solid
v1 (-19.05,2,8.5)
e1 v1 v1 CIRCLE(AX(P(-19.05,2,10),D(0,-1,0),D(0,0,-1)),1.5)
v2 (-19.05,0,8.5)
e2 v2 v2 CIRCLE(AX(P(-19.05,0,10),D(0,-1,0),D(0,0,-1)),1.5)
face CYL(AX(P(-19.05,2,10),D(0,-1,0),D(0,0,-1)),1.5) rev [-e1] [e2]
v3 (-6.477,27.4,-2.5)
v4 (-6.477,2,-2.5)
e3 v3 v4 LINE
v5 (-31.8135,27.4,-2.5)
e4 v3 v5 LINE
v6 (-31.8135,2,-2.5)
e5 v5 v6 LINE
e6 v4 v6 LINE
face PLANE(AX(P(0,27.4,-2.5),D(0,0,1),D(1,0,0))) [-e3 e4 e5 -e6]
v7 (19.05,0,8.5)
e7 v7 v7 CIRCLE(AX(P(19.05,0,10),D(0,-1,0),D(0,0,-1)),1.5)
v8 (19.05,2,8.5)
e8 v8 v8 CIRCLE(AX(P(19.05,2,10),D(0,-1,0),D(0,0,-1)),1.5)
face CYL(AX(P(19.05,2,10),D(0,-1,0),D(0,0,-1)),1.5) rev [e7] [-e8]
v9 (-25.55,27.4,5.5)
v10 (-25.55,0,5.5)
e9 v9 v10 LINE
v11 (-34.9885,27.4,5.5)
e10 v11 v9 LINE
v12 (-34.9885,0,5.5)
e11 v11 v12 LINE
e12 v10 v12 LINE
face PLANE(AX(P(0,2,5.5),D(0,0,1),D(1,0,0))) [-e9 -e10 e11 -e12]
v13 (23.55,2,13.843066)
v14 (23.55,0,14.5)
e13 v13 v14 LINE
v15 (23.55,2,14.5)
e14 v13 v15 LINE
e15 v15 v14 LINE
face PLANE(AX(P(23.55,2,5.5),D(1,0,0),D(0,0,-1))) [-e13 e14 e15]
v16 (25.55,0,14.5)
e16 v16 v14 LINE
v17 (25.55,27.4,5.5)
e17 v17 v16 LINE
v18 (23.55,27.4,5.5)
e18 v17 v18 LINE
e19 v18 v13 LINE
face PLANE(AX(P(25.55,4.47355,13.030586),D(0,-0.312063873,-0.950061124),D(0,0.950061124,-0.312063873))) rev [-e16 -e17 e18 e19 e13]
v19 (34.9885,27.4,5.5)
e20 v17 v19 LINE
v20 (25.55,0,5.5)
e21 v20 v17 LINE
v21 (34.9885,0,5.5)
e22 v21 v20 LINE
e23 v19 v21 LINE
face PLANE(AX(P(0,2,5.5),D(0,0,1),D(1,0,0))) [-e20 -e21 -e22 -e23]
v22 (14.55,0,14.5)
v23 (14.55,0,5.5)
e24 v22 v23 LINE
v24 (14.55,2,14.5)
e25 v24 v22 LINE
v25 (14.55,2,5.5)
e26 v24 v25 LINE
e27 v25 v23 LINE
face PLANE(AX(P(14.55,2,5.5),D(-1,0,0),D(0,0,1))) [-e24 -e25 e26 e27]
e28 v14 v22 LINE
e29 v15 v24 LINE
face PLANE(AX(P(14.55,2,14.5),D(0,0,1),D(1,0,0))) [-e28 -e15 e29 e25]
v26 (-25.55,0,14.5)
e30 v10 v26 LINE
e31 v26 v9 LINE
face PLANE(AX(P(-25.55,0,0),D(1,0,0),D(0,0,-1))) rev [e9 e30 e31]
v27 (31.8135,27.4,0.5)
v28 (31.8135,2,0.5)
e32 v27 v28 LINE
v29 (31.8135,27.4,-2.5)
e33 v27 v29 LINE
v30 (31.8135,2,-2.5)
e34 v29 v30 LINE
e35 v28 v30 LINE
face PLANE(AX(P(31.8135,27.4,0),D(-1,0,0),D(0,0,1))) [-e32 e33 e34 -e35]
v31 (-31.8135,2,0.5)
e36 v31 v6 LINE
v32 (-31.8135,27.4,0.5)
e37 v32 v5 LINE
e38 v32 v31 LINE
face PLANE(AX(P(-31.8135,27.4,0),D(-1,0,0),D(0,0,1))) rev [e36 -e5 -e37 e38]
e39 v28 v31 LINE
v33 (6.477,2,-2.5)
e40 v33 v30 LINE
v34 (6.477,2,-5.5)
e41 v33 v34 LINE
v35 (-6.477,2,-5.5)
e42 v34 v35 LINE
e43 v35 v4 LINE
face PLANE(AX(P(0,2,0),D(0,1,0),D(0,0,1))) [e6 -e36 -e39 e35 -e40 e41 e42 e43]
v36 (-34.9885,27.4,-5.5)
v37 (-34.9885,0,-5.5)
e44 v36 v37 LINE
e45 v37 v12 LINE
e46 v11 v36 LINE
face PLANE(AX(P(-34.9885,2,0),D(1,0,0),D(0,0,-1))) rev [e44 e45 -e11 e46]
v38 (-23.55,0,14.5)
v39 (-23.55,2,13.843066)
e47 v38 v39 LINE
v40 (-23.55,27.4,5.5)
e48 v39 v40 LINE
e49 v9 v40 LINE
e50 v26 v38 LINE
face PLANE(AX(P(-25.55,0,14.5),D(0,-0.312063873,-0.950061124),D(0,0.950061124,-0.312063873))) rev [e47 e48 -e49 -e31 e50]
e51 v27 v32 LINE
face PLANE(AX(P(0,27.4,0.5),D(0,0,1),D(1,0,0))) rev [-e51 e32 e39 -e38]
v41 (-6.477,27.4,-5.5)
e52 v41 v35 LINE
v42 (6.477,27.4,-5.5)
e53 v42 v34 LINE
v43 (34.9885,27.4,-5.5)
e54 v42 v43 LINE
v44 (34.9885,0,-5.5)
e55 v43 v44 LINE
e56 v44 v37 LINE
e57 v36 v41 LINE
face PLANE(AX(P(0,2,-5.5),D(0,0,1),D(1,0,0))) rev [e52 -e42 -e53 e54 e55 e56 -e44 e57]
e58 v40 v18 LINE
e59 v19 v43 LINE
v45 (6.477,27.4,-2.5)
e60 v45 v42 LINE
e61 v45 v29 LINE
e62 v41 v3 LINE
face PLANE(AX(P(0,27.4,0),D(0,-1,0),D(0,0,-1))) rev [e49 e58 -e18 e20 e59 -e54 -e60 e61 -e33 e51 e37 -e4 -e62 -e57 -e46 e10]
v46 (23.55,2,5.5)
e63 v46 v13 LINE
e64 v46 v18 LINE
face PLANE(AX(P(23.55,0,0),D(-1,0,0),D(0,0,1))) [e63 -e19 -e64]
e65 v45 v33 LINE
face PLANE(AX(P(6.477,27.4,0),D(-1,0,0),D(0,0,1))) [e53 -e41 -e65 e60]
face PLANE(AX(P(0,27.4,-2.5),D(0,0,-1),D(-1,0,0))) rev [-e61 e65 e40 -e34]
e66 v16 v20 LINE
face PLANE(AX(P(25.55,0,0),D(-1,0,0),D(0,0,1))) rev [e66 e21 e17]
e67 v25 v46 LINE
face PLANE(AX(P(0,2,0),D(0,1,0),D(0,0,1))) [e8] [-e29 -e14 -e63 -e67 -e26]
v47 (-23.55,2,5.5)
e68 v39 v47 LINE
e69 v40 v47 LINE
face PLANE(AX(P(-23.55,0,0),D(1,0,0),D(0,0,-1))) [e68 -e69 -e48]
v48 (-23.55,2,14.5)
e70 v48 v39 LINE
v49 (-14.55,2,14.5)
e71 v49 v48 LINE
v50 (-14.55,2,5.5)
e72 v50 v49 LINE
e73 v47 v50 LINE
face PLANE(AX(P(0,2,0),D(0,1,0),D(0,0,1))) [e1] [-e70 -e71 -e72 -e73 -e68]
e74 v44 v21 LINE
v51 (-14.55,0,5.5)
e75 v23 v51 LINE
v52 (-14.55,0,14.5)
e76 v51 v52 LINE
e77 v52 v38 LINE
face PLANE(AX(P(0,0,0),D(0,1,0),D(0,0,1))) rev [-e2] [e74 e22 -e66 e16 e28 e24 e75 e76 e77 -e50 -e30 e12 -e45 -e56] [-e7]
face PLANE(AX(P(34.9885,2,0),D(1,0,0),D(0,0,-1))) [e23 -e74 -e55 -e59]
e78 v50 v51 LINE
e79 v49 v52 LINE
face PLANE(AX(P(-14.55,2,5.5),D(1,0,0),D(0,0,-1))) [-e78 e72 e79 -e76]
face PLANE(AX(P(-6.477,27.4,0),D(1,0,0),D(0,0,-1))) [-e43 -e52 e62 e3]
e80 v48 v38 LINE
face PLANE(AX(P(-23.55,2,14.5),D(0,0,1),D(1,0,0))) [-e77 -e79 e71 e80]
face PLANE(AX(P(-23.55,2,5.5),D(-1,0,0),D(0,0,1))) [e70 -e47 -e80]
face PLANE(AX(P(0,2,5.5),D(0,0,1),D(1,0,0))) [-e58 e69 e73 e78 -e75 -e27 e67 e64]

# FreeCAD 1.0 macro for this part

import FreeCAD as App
import Part
import Sketcher

V = App.Vector
Q = App.Units.Quantity


def add_polygon(sketch, points):
    """Adds a closed chain of lines whose ends are joined by coincident constraints."""
    first, n = sketch.GeometryCount, len(points)
    for a, b in zip(points, points[1:] + points[:1]):
        sketch.addGeometry(Part.LineSegment(App.Vector(*a, 0), App.Vector(*b, 0)), False)
    for i in range(n):
        sketch.addConstraint(Sketcher.Constraint("Coincident", first + i, 2, first + (i + 1) % n, 1))

doc = App.newDocument("Part")
body = doc.addObject("PartDesign::Body", "Body")

# Sketch on XZ plane
sketch1 = body.newObject("Sketcher::SketchObject", "Sketch")
sketch1.AttachmentSupport = (doc.getObject("XZ_Plane"), [""])
sketch1.MapMode = "FlatFace"
add_polygon(sketch1, [(-35, -6), (-35, 6), (35, 6), (35, -6)])  # lines 0-3
sketch1.addConstraint([
    Sketcher.Constraint("Vertical", 0),
    Sketcher.Constraint("Horizontal", 1),
    Sketcher.Constraint("Vertical", 2),
    Sketcher.Constraint("Horizontal", 3),
    Sketcher.Constraint("Symmetric", 0, 2, 2, 2, -1, 1),
    Sketcher.Constraint("DistanceY", 0, 1, 0, 2, Q("11 mm")),
    Sketcher.Constraint("DistanceX", 1, 1, 1, 2, Q("69.977 mm")),
])
pad1 = body.newObject("PartDesign::Pad", "Pad")
pad1.Profile = sketch1
pad1.Length = 2
pad1.Reversed = True

# Sketch on XZ plane
sketch2 = body.newObject("Sketcher::SketchObject", "Sketch001")
sketch2.AttachmentSupport = (doc.getObject("XZ_Plane"), [""])
sketch2.MapMode = "FlatFace"
sketch2.AttachmentOffset = App.Placement(V(0, 0, -2), App.Rotation())
add_polygon(sketch2, [(35, 5.5), (35, -5.5), (6.5, -5.5), (6.5, -2.5), (31.8, -2.5), (31.8, 0.5), (-31.8, 0.5), (-31.8, -2.5), (-6.5, -2.5), (-6.5, -5.5), (-35, -5.5), (-35, 5.5)])  # lines 0-11
sketch2.addConstraint([
    Sketcher.Constraint("Vertical", 0),
    Sketcher.Constraint("Horizontal", 1),
    Sketcher.Constraint("Vertical", 2),
    Sketcher.Constraint("Horizontal", 3),
    Sketcher.Constraint("Vertical", 4),
    Sketcher.Constraint("Horizontal", 5),
    Sketcher.Constraint("Vertical", 6),
    Sketcher.Constraint("Horizontal", 7),
    Sketcher.Constraint("Vertical", 8),
    Sketcher.Constraint("Horizontal", 9),
    Sketcher.Constraint("Vertical", 10),
    Sketcher.Constraint("Horizontal", 11),
    Sketcher.Constraint("Symmetric", 0, 2, 10, 2, -1, 1),
    Sketcher.Constraint("Symmetric", 3, 2, 6, 2, -2),
    Sketcher.Constraint("Symmetric", 1, 2, 8, 2, -2),
    Sketcher.Constraint("Equal", 2, 4),
    Sketcher.Constraint("DistanceY", 0, 2, 0, 1, Q("11 mm")),
    Sketcher.Constraint("DistanceY", 2, 1, 2, 2, Q("3 mm")),
    Sketcher.Constraint("DistanceX", 5, 2, 5, 1, Q("63.627 mm")),
    Sketcher.Constraint("DistanceX", 11, 1, 11, 2, Q("69.977 mm")),
    Sketcher.Constraint("DistanceX", 1, 2, 1, 1, Q("28.5115 mm")),
])
pad2 = body.newObject("PartDesign::Pad", "Pad001")
pad2.Profile = sketch2
pad2.Length = 25.4
pad2.Reversed = True

# Sketch on XZ plane
sketch3 = body.newObject("Sketcher::SketchObject", "Sketch002")
sketch3.AttachmentSupport = (doc.getObject("XZ_Plane"), [""])
sketch3.MapMode = "FlatFace"
add_polygon(sketch3, [(-23.6, 14.5), (-23.6, 5.5), (-14.6, 5.5), (-14.6, 14.5)])  # lines 0-3
sketch3.addGeometry(Part.Circle(V(-19.1, 10, 0), V(0, 0, 1), 1.5), False)  # 4
add_polygon(sketch3, [(14.6, 14.5), (14.6, 5.5), (23.6, 5.5), (23.6, 14.5)])  # lines 5-8
sketch3.addGeometry(Part.Circle(V(19.1, 10, 0), V(0, 0, 1), 1.5), False)  # 9
sketch3.addConstraint([
    Sketcher.Constraint("Vertical", 0),
    Sketcher.Constraint("Horizontal", 1),
    Sketcher.Constraint("Vertical", 2),
    Sketcher.Constraint("Horizontal", 3),
    Sketcher.Constraint("Vertical", 5),
    Sketcher.Constraint("Horizontal", 6),
    Sketcher.Constraint("Vertical", 7),
    Sketcher.Constraint("Horizontal", 8),
    Sketcher.Constraint("Equal", 4, 9),
    Sketcher.Constraint("Symmetric", 4, 3, 9, 3, -2),
    Sketcher.Constraint("Symmetric", 1, 2, 5, 2, -2),
    Sketcher.Constraint("Symmetric", 3, 2, 7, 2, -2),
    Sketcher.Constraint("Equal", 8, 0),
    Sketcher.Constraint("Diameter", 4, Q("3 mm")),
    Sketcher.Constraint("DistanceX", 1, 1, 1, 2, Q("9 mm")),
    Sketcher.Constraint("DistanceY", -1, 1, 4, 3, Q("10 mm")),
    Sketcher.Constraint("DistanceY", -1, 1, 0, 2, Q("5.5 mm")),
    Sketcher.Constraint("DistanceX", 4, 3, 9, 3, Q("38.1 mm")),
    Sketcher.Constraint("DistanceX", 0, 2, 4, 3, Q("4.5 mm")),
])
pad3 = body.newObject("PartDesign::Pad", "Pad002")
pad3.Profile = sketch3
pad3.Length = 2
pad3.Reversed = True

# Sketch on YZ plane
sketch4 = body.newObject("Sketcher::SketchObject", "Sketch003")
sketch4.AttachmentSupport = (doc.getObject("YZ_Plane"), [""])
sketch4.MapMode = "FlatFace"
sketch4.AttachmentOffset = App.Placement(V(0, 0, -23.55), App.Rotation())
add_polygon(sketch4, [(0, 14), (27, 6), (0, 6)])  # lines 0-2
sketch4.addConstraint([
    Sketcher.Constraint("Horizontal", 1),
    Sketcher.Constraint("Vertical", 2),
    Sketcher.Constraint("PointOnObject", 1, 2, -2),
    Sketcher.Constraint("DistanceY", 2, 1, 2, 2, Q("9 mm")),
    Sketcher.Constraint("DistanceX", 1, 2, 1, 1, Q("27.4 mm")),
    Sketcher.Constraint("DistanceY", -1, 1, 0, 2, Q("5.5 mm")),
])
pad4 = body.newObject("PartDesign::Pad", "Pad003")
pad4.Profile = sketch4
pad4.Length = 2
pad4.Reversed = True

# Sketch on YZ plane
sketch5 = body.newObject("Sketcher::SketchObject", "Sketch004")
sketch5.AttachmentSupport = (doc.getObject("YZ_Plane"), [""])
sketch5.MapMode = "FlatFace"
sketch5.AttachmentOffset = App.Placement(V(0, 0, 23.55), App.Rotation())
add_polygon(sketch5, [(0, 14), (27, 6), (0, 6)])  # lines 0-2
sketch5.addConstraint([
    Sketcher.Constraint("Horizontal", 1),
    Sketcher.Constraint("Vertical", 2),
    Sketcher.Constraint("PointOnObject", 1, 2, -2),
    Sketcher.Constraint("DistanceY", 2, 1, 2, 2, Q("9 mm")),
    Sketcher.Constraint("DistanceX", 1, 2, 1, 1, Q("27.4 mm")),
    Sketcher.Constraint("DistanceY", -1, 1, 0, 2, Q("5.5 mm")),
])
pad5 = body.newObject("PartDesign::Pad", "Pad004")
pad5.Profile = sketch5
pad5.Length = 2

doc.recompute()
